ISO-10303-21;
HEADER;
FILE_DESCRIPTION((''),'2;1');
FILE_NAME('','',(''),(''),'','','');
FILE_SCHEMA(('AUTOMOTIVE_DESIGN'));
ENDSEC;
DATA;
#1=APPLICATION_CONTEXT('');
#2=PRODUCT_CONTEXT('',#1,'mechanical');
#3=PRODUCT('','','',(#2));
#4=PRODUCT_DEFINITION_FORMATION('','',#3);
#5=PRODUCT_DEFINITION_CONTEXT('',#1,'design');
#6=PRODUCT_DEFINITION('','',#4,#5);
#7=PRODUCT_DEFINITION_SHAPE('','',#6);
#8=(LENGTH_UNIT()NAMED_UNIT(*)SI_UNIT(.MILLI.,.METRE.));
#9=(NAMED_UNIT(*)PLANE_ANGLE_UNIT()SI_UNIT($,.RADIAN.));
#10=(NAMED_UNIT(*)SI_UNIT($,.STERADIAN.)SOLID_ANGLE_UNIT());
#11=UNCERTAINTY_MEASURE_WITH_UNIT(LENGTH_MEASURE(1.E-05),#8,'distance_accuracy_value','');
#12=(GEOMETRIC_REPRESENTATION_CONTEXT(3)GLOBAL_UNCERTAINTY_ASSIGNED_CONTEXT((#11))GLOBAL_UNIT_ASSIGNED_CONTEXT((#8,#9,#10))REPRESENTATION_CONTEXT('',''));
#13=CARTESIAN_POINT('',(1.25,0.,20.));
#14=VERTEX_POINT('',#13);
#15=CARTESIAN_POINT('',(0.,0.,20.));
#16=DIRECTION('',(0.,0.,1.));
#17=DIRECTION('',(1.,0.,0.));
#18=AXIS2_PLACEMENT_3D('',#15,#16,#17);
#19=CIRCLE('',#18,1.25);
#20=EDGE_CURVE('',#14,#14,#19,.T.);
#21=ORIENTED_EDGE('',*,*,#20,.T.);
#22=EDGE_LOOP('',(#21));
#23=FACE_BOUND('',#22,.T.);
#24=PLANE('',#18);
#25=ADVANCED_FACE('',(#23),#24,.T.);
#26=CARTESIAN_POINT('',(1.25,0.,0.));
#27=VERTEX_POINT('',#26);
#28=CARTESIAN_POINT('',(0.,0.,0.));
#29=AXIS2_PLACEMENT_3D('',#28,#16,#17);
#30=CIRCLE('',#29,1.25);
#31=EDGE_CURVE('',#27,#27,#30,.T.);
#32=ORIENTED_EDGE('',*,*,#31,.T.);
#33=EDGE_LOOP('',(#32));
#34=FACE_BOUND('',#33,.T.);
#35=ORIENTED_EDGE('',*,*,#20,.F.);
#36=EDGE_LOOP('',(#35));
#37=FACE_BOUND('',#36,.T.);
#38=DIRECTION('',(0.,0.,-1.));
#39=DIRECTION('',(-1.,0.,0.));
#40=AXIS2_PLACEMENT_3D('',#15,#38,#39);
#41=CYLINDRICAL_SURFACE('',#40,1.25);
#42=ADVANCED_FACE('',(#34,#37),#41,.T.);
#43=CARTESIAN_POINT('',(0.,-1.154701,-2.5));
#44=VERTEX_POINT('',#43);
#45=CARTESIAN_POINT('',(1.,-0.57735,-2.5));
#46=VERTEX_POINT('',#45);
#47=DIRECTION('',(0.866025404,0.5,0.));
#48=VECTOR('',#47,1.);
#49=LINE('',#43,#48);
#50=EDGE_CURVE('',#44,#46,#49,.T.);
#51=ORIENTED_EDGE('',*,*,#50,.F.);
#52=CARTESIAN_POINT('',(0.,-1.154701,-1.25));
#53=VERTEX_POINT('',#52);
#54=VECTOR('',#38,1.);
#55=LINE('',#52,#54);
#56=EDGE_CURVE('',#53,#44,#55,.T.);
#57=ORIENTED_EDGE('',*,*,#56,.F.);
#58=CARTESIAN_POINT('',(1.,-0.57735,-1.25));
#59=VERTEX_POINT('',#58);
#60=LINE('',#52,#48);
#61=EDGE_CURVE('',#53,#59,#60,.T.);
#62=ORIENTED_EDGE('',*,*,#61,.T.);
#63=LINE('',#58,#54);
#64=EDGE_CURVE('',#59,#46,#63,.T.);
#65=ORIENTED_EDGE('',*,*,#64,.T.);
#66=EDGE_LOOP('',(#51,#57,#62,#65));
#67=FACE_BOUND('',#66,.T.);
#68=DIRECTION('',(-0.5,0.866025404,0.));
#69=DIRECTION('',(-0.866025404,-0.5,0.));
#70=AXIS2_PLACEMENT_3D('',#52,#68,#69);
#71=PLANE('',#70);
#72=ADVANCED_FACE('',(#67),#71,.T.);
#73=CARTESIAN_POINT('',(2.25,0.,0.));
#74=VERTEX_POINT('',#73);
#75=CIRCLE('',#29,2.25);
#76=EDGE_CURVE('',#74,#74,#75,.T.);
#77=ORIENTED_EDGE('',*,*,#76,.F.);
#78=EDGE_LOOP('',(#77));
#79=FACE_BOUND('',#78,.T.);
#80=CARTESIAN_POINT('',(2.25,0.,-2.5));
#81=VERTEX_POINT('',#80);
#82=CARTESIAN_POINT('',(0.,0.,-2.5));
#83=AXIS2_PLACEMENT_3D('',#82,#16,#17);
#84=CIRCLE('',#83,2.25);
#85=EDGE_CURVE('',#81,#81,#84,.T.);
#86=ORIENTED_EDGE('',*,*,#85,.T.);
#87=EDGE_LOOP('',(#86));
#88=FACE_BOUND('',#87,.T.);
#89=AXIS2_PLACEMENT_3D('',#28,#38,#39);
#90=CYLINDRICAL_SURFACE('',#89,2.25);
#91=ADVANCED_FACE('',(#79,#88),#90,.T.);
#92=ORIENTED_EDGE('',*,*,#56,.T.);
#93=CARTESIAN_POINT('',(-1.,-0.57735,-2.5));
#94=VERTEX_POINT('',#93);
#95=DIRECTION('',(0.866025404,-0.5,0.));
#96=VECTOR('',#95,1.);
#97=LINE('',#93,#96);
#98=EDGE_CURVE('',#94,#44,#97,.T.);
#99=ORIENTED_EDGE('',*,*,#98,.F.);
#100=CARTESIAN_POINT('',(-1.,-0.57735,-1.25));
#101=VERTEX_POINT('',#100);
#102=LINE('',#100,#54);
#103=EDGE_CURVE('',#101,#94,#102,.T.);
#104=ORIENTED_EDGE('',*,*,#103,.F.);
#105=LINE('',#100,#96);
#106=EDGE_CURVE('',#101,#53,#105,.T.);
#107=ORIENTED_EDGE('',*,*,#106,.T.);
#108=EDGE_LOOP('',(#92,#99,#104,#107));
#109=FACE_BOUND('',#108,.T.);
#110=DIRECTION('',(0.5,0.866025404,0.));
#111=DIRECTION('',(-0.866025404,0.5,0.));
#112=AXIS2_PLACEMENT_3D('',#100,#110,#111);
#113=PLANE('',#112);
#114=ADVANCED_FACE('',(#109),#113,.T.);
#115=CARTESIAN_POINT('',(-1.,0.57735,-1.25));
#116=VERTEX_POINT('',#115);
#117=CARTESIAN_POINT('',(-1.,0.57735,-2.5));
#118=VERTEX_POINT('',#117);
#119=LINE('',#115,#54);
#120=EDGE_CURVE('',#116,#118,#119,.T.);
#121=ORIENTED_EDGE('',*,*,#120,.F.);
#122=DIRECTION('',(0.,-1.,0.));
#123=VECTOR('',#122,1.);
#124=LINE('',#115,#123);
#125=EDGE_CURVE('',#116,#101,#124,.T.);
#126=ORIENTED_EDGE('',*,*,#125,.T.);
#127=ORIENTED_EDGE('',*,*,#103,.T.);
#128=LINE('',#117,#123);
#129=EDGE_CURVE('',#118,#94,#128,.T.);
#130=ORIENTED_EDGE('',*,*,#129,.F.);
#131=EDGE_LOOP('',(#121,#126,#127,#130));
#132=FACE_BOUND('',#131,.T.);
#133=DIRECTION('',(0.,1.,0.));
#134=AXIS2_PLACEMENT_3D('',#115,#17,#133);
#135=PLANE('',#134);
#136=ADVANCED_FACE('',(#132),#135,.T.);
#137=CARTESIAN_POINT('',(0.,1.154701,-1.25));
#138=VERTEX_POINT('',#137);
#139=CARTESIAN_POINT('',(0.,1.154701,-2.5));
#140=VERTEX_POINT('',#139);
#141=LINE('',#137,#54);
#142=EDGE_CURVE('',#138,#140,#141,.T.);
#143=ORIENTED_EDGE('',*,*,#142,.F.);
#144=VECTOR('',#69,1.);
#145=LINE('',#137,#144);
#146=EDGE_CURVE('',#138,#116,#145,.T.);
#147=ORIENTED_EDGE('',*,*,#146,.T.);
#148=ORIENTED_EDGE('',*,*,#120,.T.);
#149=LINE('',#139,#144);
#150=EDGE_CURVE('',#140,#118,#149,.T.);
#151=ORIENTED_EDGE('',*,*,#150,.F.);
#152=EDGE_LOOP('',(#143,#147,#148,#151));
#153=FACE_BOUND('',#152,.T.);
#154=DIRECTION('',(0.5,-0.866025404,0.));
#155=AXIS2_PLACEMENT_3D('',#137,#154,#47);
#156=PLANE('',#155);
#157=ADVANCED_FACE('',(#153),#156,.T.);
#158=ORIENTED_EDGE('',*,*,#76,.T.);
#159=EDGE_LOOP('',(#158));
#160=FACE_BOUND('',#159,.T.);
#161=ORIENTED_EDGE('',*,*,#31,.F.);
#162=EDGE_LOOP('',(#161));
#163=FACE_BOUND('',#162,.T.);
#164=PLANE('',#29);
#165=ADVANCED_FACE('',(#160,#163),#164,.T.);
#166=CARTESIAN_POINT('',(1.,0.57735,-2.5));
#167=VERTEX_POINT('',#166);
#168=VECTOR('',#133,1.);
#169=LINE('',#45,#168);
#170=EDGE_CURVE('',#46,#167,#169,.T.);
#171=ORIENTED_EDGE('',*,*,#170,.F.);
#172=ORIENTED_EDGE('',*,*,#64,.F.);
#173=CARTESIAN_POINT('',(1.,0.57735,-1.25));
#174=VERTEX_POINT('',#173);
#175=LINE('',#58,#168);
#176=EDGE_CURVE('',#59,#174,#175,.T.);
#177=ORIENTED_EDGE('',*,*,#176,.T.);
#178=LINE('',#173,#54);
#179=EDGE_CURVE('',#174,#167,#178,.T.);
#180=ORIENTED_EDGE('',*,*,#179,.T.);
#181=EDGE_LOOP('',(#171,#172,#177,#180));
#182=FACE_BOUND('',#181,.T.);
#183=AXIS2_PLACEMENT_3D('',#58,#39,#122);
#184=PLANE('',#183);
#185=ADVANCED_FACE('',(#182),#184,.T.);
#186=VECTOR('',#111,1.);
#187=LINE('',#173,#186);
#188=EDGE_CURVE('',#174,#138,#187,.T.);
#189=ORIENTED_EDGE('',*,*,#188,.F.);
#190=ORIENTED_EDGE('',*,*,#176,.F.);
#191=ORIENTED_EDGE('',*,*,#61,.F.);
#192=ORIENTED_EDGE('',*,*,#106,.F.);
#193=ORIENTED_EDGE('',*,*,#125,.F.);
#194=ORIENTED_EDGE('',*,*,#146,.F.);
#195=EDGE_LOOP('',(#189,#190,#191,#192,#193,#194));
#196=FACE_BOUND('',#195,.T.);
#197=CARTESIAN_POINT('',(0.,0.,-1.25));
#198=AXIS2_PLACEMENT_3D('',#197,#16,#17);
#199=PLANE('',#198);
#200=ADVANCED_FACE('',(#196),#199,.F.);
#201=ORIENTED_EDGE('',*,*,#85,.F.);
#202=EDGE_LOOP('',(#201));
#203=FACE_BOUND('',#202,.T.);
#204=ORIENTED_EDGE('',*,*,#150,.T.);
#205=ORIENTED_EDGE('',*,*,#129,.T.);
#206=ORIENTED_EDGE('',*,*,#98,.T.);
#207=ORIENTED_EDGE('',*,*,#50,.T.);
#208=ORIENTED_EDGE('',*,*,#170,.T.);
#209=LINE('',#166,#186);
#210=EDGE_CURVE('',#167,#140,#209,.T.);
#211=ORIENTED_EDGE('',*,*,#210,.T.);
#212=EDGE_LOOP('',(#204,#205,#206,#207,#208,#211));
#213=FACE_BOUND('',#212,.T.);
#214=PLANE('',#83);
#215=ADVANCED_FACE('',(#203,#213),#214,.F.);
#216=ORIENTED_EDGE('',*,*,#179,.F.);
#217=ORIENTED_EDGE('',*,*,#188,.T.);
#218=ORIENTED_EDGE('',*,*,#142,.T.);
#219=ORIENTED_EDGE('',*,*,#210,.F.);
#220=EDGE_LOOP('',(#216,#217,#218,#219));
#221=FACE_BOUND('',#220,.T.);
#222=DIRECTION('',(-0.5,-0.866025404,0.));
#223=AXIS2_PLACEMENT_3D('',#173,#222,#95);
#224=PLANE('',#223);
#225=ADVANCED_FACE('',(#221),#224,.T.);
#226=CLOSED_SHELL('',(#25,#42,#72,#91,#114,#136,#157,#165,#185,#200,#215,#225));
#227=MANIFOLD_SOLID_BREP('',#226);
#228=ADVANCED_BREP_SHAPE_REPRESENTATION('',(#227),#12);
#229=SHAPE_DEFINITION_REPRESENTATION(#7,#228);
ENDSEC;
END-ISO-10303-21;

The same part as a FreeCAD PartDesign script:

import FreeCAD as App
import Part
import Sketcher
from FreeCAD import Vector
Q = App.Units.Quantity

doc = App.newDocument("Part")
params = doc.addObject("Spreadsheet::Sheet", "Params")
for row, (alias, value) in enumerate([
    ("sketch1_diameter", "4.5 mm"),
    ("pad1_length", "2.5 mm"),
    ("sketch2_diameter", "2.5 mm"),
    ("pad2_length", "20 mm"),
    ("pocket1_length", "1.25 mm"),
], start=1):
    params.set(f"A{row}", alias)
    params.set(f"B{row}", "=" + value)
    params.setAlias(f"B{row}", alias)

body = doc.addObject("PartDesign::Body", "Body")

sketch1 = body.newObject("Sketcher::SketchObject", "Sketch")
sketch1.AttachmentSupport = (doc.getObject("XY_Plane"), [""])
sketch1.MapMode = "FlatFace"
sketch1.AttachmentOffset = App.Placement(Vector(0, 0, -2.5), App.Rotation())
sketch1.addGeometry(Part.Circle(Vector(0, 0, 0), Vector(0, 0, 1), 2.25), False)
sketch1.addConstraint(Sketcher.Constraint("Coincident", 0, 3, -1, 1))
sketch1.addConstraint(Sketcher.Constraint("Diameter", 0, 4.5))
sketch1.setExpression("Constraints[1]", "Params.sketch1_diameter")
pad1 = body.newObject("PartDesign::Pad", "Pad")
pad1.Profile = sketch1
pad1.setExpression("Length", "Params.pad1_length")

sketch2 = body.newObject("Sketcher::SketchObject", "Sketch001")
sketch2.AttachmentSupport = (doc.getObject("XY_Plane"), [""])
sketch2.MapMode = "FlatFace"
sketch2.addGeometry(Part.Circle(Vector(0, 0, 0), Vector(0, 0, 1), 1.25), False)
sketch2.addConstraint(Sketcher.Constraint("Coincident", 0, 3, -1, 1))
sketch2.addConstraint(Sketcher.Constraint("Diameter", 0, 2.5))
sketch2.setExpression("Constraints[1]", "Params.sketch2_diameter")
pad2 = body.newObject("PartDesign::Pad", "Pad001")
pad2.Profile = sketch2
pad2.setExpression("Length", "Params.pad2_length")

sketch3 = body.newObject("Sketcher::SketchObject", "Sketch002")
sketch3.AttachmentSupport = (doc.getObject("XY_Plane"), [""])
sketch3.MapMode = "FlatFace"
sketch3.AttachmentOffset = App.Placement(Vector(0, 0, -2.5), App.Rotation())
sketch3.addGeometry(Part.LineSegment(Vector(0, -1.154701, 0), Vector(1, -0.57735, 0)), False)
sketch3.addGeometry(Part.LineSegment(Vector(1, -0.57735, 0), Vector(1, 0.57735, 0)), False)
sketch3.addGeometry(Part.LineSegment(Vector(1, 0.57735, 0), Vector(0, 1.154701, 0)), False)
sketch3.addGeometry(Part.LineSegment(Vector(0, 1.154701, 0), Vector(-1, 0.57735, 0)), False)
sketch3.addGeometry(Part.LineSegment(Vector(-1, 0.57735, 0), Vector(-1, -0.57735, 0)), False)
sketch3.addGeometry(Part.LineSegment(Vector(-1, -0.57735, 0), Vector(0, -1.154701, 0)), False)
sketch3.addConstraint(Sketcher.Constraint("Coincident", 0, 2, 1, 1))
sketch3.addConstraint(Sketcher.Constraint("Coincident", 1, 2, 2, 1))
sketch3.addConstraint(Sketcher.Constraint("Coincident", 2, 2, 3, 1))
sketch3.addConstraint(Sketcher.Constraint("Coincident", 3, 2, 4, 1))
sketch3.addConstraint(Sketcher.Constraint("Coincident", 4, 2, 5, 1))
sketch3.addConstraint(Sketcher.Constraint("Coincident", 5, 2, 0, 1))
sketch3.addConstraint(Sketcher.Constraint("Vertical", 1))
sketch3.addConstraint(Sketcher.Constraint("Vertical", 4))
sketch3.addConstraint(Sketcher.Constraint("Symmetric", 0, 2, 3, 2, -1, 1))
sketch3.addConstraint(Sketcher.Constraint("Symmetric", 2, 2, 5, 2, -1, 1))
sketch3.addConstraint(Sketcher.Constraint("PointOnObject", 2, 2, -2))
sketch3.addConstraint(Sketcher.Constraint("Parallel", 2, 5))
sketch3.addConstraint(Sketcher.Constraint("Horizontal", 1, 2, 3, 2))
sketch3.addConstraint(Sketcher.Constraint("Angle", 0, Q("30 deg")))
sketch3.addConstraint(Sketcher.Constraint("DistanceX", -1, 1, 0, 2, 1.0))
sketch3.addConstraint(Sketcher.Constraint("DistanceY", 1, 1, 1, 2, 1.154701))
pocket1 = body.newObject("PartDesign::Pocket", "Pocket")
pocket1.Profile = sketch3
pocket1.setExpression("Length", "Params.pocket1_length")
pocket1.Reversed = True

doc.recompute()
